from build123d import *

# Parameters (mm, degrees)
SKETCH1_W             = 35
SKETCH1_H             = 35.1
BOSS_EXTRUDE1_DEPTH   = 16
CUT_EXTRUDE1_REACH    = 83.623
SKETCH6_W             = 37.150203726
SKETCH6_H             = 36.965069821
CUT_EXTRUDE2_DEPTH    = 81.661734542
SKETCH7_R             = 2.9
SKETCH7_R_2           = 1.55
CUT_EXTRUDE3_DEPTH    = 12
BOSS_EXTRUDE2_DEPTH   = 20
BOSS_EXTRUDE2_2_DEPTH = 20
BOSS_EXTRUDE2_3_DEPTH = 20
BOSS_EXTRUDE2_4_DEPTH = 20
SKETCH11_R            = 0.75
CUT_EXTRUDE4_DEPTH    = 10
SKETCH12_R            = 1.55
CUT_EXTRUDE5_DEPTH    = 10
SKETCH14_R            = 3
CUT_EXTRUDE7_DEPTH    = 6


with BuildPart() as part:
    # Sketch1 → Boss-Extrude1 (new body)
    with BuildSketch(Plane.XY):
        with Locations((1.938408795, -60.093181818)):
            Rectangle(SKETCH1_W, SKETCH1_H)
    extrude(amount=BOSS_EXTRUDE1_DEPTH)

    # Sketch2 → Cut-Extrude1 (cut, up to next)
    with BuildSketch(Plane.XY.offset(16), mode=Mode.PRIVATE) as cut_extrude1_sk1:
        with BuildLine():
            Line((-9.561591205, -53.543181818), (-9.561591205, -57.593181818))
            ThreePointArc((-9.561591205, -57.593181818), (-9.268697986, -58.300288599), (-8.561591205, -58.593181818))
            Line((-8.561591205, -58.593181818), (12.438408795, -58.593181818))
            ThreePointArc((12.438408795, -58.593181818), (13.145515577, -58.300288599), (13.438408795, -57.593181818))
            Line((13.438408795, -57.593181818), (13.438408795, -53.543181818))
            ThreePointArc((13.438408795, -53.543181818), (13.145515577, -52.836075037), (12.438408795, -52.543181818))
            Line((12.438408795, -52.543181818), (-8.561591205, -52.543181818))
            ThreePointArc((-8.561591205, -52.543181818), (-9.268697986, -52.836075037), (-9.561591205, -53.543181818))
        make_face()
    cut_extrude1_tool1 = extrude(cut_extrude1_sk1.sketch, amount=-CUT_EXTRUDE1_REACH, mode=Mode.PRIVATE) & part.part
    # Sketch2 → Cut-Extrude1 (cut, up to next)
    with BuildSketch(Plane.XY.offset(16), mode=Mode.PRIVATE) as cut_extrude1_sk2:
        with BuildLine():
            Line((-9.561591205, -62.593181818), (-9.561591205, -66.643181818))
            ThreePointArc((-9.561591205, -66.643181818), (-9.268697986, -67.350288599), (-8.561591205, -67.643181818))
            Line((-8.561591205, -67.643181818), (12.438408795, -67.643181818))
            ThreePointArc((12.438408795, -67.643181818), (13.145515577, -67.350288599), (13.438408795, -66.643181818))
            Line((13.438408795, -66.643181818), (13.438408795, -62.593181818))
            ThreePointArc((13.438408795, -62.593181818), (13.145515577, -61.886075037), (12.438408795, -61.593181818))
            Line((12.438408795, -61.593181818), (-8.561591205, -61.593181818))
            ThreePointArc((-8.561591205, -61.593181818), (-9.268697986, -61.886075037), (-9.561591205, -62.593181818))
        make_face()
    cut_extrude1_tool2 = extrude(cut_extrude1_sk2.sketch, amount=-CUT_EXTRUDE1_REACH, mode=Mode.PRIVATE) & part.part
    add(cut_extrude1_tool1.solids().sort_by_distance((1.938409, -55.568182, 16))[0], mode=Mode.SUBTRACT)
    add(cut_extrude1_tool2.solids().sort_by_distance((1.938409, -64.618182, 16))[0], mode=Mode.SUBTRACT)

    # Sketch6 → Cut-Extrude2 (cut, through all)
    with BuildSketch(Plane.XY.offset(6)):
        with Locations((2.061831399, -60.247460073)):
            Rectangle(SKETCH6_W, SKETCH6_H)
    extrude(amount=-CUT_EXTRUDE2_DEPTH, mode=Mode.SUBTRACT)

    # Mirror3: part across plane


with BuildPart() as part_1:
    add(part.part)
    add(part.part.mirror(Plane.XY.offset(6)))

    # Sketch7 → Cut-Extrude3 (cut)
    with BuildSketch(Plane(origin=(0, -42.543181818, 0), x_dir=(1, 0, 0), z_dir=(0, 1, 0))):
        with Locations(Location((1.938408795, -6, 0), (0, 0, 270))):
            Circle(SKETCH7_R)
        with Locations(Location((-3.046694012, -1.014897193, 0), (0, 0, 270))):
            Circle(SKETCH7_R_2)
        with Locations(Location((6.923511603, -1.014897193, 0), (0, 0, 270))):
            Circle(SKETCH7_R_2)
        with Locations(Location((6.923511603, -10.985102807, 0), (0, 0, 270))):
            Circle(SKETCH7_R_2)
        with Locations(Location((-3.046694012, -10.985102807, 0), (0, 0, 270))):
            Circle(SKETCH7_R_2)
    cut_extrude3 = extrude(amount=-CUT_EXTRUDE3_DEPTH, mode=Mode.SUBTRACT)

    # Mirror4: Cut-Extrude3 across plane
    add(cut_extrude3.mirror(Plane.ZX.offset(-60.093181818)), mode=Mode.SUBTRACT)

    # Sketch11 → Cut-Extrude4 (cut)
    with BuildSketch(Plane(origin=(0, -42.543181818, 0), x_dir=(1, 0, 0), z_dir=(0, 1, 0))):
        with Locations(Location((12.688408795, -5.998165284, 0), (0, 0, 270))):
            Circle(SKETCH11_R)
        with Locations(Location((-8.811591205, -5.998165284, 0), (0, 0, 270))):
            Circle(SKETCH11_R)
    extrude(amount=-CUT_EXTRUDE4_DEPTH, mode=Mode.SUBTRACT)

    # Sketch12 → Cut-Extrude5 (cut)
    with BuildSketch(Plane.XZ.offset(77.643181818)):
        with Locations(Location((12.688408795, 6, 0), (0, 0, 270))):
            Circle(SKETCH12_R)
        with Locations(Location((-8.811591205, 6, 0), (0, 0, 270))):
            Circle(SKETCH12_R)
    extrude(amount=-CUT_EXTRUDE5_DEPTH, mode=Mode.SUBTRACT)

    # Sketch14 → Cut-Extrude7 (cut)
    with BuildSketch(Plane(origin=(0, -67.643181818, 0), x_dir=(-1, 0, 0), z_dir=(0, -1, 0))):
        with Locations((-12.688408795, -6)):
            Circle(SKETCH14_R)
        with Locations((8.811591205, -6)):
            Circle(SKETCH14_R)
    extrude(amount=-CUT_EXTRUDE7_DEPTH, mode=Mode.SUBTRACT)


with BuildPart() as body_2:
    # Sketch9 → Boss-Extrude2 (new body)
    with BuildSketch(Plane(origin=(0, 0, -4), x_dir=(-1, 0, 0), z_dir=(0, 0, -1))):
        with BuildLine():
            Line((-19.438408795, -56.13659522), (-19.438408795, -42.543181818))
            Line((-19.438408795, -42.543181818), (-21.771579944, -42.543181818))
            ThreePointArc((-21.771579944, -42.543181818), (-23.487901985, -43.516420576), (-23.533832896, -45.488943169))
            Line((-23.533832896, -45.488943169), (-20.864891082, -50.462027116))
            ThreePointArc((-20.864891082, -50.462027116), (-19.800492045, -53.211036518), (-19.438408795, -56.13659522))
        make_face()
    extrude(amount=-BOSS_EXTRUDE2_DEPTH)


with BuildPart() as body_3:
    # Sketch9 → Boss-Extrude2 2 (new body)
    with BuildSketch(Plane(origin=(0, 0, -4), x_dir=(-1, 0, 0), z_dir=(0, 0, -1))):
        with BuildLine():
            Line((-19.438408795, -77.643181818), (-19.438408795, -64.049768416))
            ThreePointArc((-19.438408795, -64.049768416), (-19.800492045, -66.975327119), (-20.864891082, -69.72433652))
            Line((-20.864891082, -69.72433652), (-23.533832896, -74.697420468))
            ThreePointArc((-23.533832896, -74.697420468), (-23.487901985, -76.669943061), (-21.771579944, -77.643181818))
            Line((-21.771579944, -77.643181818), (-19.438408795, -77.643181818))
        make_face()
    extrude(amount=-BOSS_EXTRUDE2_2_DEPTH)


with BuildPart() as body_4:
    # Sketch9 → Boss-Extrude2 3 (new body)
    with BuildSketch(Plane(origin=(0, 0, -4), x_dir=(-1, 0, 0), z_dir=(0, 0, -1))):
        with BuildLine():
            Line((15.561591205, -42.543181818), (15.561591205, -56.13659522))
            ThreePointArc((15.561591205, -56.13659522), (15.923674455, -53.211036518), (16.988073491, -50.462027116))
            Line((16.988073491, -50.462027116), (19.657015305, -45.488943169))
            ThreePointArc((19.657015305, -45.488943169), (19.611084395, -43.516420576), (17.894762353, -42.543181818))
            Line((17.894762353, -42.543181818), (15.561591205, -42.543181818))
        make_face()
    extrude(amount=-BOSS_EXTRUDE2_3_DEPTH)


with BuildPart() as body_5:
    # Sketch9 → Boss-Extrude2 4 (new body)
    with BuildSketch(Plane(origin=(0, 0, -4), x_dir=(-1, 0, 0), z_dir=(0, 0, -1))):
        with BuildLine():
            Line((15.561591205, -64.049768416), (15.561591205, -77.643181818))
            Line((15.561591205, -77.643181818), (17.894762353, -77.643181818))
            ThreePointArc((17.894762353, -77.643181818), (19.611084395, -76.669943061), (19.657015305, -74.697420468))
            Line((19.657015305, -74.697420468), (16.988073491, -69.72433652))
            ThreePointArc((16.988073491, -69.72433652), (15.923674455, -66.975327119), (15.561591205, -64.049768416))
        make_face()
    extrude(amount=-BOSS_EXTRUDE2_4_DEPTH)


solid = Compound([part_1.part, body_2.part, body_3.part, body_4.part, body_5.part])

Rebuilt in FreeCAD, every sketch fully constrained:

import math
import FreeCAD as App
import Part
import Sketcher

V = App.Vector
Q = App.Units.Quantity

doc = App.newDocument("Part")
body = doc.addObject("PartDesign::Body", "Body")

# Sketch on XY plane
sketch1 = body.newObject("Sketcher::SketchObject", "Sketch")
sketch1.AttachmentSupport = (doc.getObject("XY_Plane"), [""])
sketch1.MapMode = "FlatFace"
sketch1.addGeometry([
    Part.LineSegment(V(-16, -43, 0), V(-16, -78, 0)),
    Part.LineSegment(V(-16, -78, 0), V(19, -78, 0)),
    Part.LineSegment(V(19, -78, 0), V(19, -43, 0)),
    Part.LineSegment(V(19, -43, 0), V(-16, -43, 0)),
], False)
sketch1.addConstraint([
    Sketcher.Constraint("Coincident", 0, 2, 1, 1),
    Sketcher.Constraint("Coincident", 1, 2, 2, 1),
    Sketcher.Constraint("Coincident", 2, 2, 3, 1),
    Sketcher.Constraint("Coincident", 3, 2, 0, 1),
    Sketcher.Constraint("Vertical", 0),
    Sketcher.Constraint("Horizontal", 1),
    Sketcher.Constraint("Vertical", 2),
    Sketcher.Constraint("Horizontal", 3),
    Sketcher.Constraint("DistanceX", 1, 1, 1, 2, Q("35 mm")),
    Sketcher.Constraint("DistanceY", 0, 2, 0, 1, Q("35.1 mm")),
    Sketcher.Constraint("DistanceX", 0, 2, -1, 1, Q("15.561591 mm")),
    Sketcher.Constraint("DistanceY", 0, 2, -1, 1, Q("77.643182 mm")),
])
pad1 = body.newObject("PartDesign::Pad", "Pad")
pad1.Profile = sketch1
pad1.Length = 16

# Sketch on XY plane
sketch2 = body.newObject("Sketcher::SketchObject", "Sketch001")
sketch2.AttachmentSupport = (doc.getObject("XY_Plane"), [""])
sketch2.MapMode = "FlatFace"
sketch2.AttachmentOffset = App.Placement(V(0, 0, 16), App.Rotation())
sketch2.addGeometry([
    Part.LineSegment(V(-9.6, -53.5, 0), V(-9.6, -57.6, 0)),  # 0
    Part.ArcOfCircle(Part.Circle(V(-8.6, -57.6, 0), V(0, 0, 1), 1), math.radians(-180), math.radians(-90)),  # 1
    Part.LineSegment(V(-8.6, -58.6, 0), V(12.4, -58.6, 0)),  # 2
    Part.ArcOfCircle(Part.Circle(V(12.4, -57.6, 0), V(0, 0, 1), 1), math.radians(-90), math.radians(0)),  # 3
    Part.LineSegment(V(13.4, -57.6, 0), V(13.4, -53.5, 0)),  # 4
    Part.ArcOfCircle(Part.Circle(V(12.4, -53.5, 0), V(0, 0, 1), 1), math.radians(0), math.radians(90)),  # 5
    Part.LineSegment(V(12.4, -52.5, 0), V(-8.6, -52.5, 0)),  # 6
    Part.ArcOfCircle(Part.Circle(V(-8.6, -53.5, 0), V(0, 0, 1), 1), math.radians(90), math.radians(180)),  # 7
], False)
sketch2.addConstraint([
    Sketcher.Constraint("Tangent", 0, 2, 1, 1),
    Sketcher.Constraint("Tangent", 1, 2, 2, 1),
    Sketcher.Constraint("Tangent", 2, 2, 3, 1),
    Sketcher.Constraint("Tangent", 3, 2, 4, 1),
    Sketcher.Constraint("Tangent", 4, 2, 5, 1),
    Sketcher.Constraint("Tangent", 5, 2, 6, 1),
    Sketcher.Constraint("Tangent", 6, 2, 7, 1),
    Sketcher.Constraint("Tangent", 7, 2, 0, 1),
    Sketcher.Constraint("Vertical", 0),
    Sketcher.Constraint("Horizontal", 2),
    Sketcher.Constraint("Vertical", 4),
    Sketcher.Constraint("Horizontal", 6),
    Sketcher.Constraint("Equal", 1, 3),
    Sketcher.Constraint("Equal", 3, 5),
    Sketcher.Constraint("Equal", 5, 7),
    Sketcher.Constraint("Radius", 1, Q("1 mm")),
    Sketcher.Constraint("DistanceX", 2, 1, 2, 2, Q("21 mm")),
    Sketcher.Constraint("DistanceY", 0, 2, 0, 1, Q("4.05 mm")),
    Sketcher.Constraint("DistanceX", 1, 3, -1, 1, Q("8.561591 mm")),
    Sketcher.Constraint("DistanceY", 1, 3, -1, 1, Q("57.593182 mm")),
])
pocket1 = body.newObject("PartDesign::Pocket", "Pocket")
pocket1.Profile = sketch2
pocket1.Type = "UpToFirst"

# Sketch on XY plane
sketch3 = body.newObject("Sketcher::SketchObject", "Sketch002")
sketch3.AttachmentSupport = (doc.getObject("XY_Plane"), [""])
sketch3.MapMode = "FlatFace"
sketch3.AttachmentOffset = App.Placement(V(0, 0, 16), App.Rotation())
sketch3.addGeometry([
    Part.LineSegment(V(-9.6, -62.6, 0), V(-9.6, -66.6, 0)),  # 0
    Part.ArcOfCircle(Part.Circle(V(-8.6, -66.6, 0), V(0, 0, 1), 1), math.radians(-180), math.radians(-90)),  # 1
    Part.LineSegment(V(-8.6, -67.6, 0), V(12.4, -67.6, 0)),  # 2
    Part.ArcOfCircle(Part.Circle(V(12.4, -66.6, 0), V(0, 0, 1), 1), math.radians(-90), math.radians(0)),  # 3
    Part.LineSegment(V(13.4, -66.6, 0), V(13.4, -62.6, 0)),  # 4
    Part.ArcOfCircle(Part.Circle(V(12.4, -62.6, 0), V(0, 0, 1), 1), math.radians(0), math.radians(90)),  # 5
    Part.LineSegment(V(12.4, -61.6, 0), V(-8.6, -61.6, 0)),  # 6
    Part.ArcOfCircle(Part.Circle(V(-8.6, -62.6, 0), V(0, 0, 1), 1), math.radians(90), math.radians(180)),  # 7
], False)
sketch3.addConstraint([
    Sketcher.Constraint("Tangent", 0, 2, 1, 1),
    Sketcher.Constraint("Tangent", 1, 2, 2, 1),
    Sketcher.Constraint("Tangent", 2, 2, 3, 1),
    Sketcher.Constraint("Tangent", 3, 2, 4, 1),
    Sketcher.Constraint("Tangent", 4, 2, 5, 1),
    Sketcher.Constraint("Tangent", 5, 2, 6, 1),
    Sketcher.Constraint("Tangent", 6, 2, 7, 1),
    Sketcher.Constraint("Tangent", 7, 2, 0, 1),
    Sketcher.Constraint("Vertical", 0),
    Sketcher.Constraint("Horizontal", 2),
    Sketcher.Constraint("Vertical", 4),
    Sketcher.Constraint("Horizontal", 6),
    Sketcher.Constraint("Equal", 1, 3),
    Sketcher.Constraint("Equal", 3, 5),
    Sketcher.Constraint("Equal", 5, 7),
    Sketcher.Constraint("Radius", 1, Q("1 mm")),
    Sketcher.Constraint("DistanceX", 2, 1, 2, 2, Q("21 mm")),
    Sketcher.Constraint("DistanceY", 0, 2, 0, 1, Q("4.05 mm")),
    Sketcher.Constraint("DistanceX", 1, 3, -1, 1, Q("8.561591 mm")),
    Sketcher.Constraint("DistanceY", 1, 3, -1, 1, Q("66.643182 mm")),
])
pocket2 = body.newObject("PartDesign::Pocket", "Pocket001")
pocket2.Profile = sketch3
pocket2.Type = "UpToFirst"

# Sketch on XY plane
sketch4 = body.newObject("Sketcher::SketchObject", "Sketch003")
sketch4.AttachmentSupport = (doc.getObject("XY_Plane"), [""])
sketch4.MapMode = "FlatFace"
sketch4.AttachmentOffset = App.Placement(V(0, 0, 6), App.Rotation())
sketch4.addGeometry([
    Part.LineSegment(V(-17, -42, 0), V(-17, -79, 0)),
    Part.LineSegment(V(-17, -79, 0), V(21, -79, 0)),
    Part.LineSegment(V(21, -79, 0), V(21, -42, 0)),
    Part.LineSegment(V(21, -42, 0), V(-17, -42, 0)),
], False)
sketch4.addConstraint([
    Sketcher.Constraint("Coincident", 0, 2, 1, 1),
    Sketcher.Constraint("Coincident", 1, 2, 2, 1),
    Sketcher.Constraint("Coincident", 2, 2, 3, 1),
    Sketcher.Constraint("Coincident", 3, 2, 0, 1),
    Sketcher.Constraint("Vertical", 0),
    Sketcher.Constraint("Horizontal", 1),
    Sketcher.Constraint("Vertical", 2),
    Sketcher.Constraint("Horizontal", 3),
    Sketcher.Constraint("DistanceY", 0, 2, 0, 1, Q("36.96507 mm")),
    Sketcher.Constraint("DistanceX", 1, 1, 1, 2, Q("37.150204 mm")),
    Sketcher.Constraint("DistanceX", 0, 2, -1, 1, Q("16.51327 mm")),
    Sketcher.Constraint("DistanceY", 0, 2, -1, 1, Q("78.729995 mm")),
])
pocket3 = body.newObject("PartDesign::Pocket", "Pocket002")
pocket3.Profile = sketch4
pocket3.Type = "ThroughAll"
body2 = doc.addObject("PartDesign::Body", "Body001")
doc.recompute()

body2.BaseFeature = body
doc.recompute()

mirroring = doc.addObject("Part::Mirroring", "Mirroring")
mirroring.Source = body
mirroring.Base = V(0, 0, 6)
mirroring.Normal = V(0, 0, 1)
body3 = doc.addObject("PartDesign::Body", "Body002")
body3.BaseFeature = mirroring
boolean = body2.newObject("PartDesign::Boolean", "Boolean")
boolean.Type = "Fuse"
boolean.addObjects([body3])
doc.recompute()

# Sketch on XZ plane
sketch5 = body2.newObject("Sketcher::SketchObject", "Sketch004")
sketch5.AttachmentSupport = (doc.getObject("XZ_Plane001"), [""])
sketch5.MapMode = "FlatFace"
sketch5.AttachmentOffset = App.Placement(V(0, 0, 42.543182), App.Rotation())
sketch5.addGeometry([
    Part.Circle(V(1.9, 6, 0), V(0, 0, 1), 2.9),  # 0
    Part.Circle(V(-3, 1, 0), V(0, 0, 1), 1.6),  # 1
    Part.Circle(V(6.9, 1, 0), V(0, 0, 1), 1.6),  # 2
    Part.Circle(V(6.9, 11, 0), V(0, 0, 1), 1.6),  # 3
    Part.Circle(V(-3, 11, 0), V(0, 0, 1), 1.6),  # 4
], False)
sketch5.addConstraint([
    Sketcher.Constraint("Equal", 1, 2),
    Sketcher.Constraint("Equal", 2, 3),
    Sketcher.Constraint("Equal", 3, 4),
    Sketcher.Constraint("Horizontal", 1, 3, 2, 3),
    Sketcher.Constraint("Horizontal", 3, 3, 4, 3),
    Sketcher.Constraint("Vertical", 2, 3, 3, 3),
    Sketcher.Constraint("Vertical", 1, 3, 4, 3),
    Sketcher.Constraint("Diameter", 0, Q("5.8 mm")),
    Sketcher.Constraint("Diameter", 1, Q("3.1 mm")),
    Sketcher.Constraint("DistanceY", -1, 1, 0, 3, Q("6 mm")),
    Sketcher.Constraint("DistanceX", -1, 1, 0, 3, Q("1.938409 mm")),
    Sketcher.Constraint("DistanceX", -1, 1, 2, 3, Q("6.923512 mm")),
    Sketcher.Constraint("DistanceX", 1, 3, -1, 1, Q("3.046694 mm")),
    Sketcher.Constraint("DistanceY", -1, 1, 1, 3, Q("1.014897 mm")),
    Sketcher.Constraint("DistanceY", -1, 1, 3, 3, Q("10.985103 mm")),
])
pocket4 = body2.newObject("PartDesign::Pocket", "Pocket003")
pocket4.Profile = sketch5
pocket4.Length = 12
pocket4.Reversed = True
doc.recompute()

datumplane = body2.newObject("PartDesign::Plane", "DatumPlane")
datumplane.AttachmentSupport = (doc.getObject("XZ_Plane001"), [""])
datumplane.MapMode = "FlatFace"
datumplane.AttachmentOffset = App.Placement(V(0, 0, 60.093182), App.Rotation())
mirrored = body2.newObject("PartDesign::Mirrored", "Mirrored")
mirrored.Originals = [pocket4]
mirrored.MirrorPlane = (datumplane, [""])
body2.Tip = mirrored

# Sketch on XZ plane
sketch6 = body2.newObject("Sketcher::SketchObject", "Sketch005")
sketch6.AttachmentSupport = (doc.getObject("XZ_Plane001"), [""])
sketch6.MapMode = "FlatFace"
sketch6.AttachmentOffset = App.Placement(V(0, 0, 42.543182), App.Rotation())
sketch6.addGeometry([
    Part.Circle(V(12.7, 6, 0), V(0, 0, 1), 0.8),
    Part.Circle(V(-8.8, 6, 0), V(0, 0, 1), 0.8),
], False)
sketch6.addConstraint([
    Sketcher.Constraint("Equal", 0, 1),
    Sketcher.Constraint("Horizontal", 0, 3, 1, 3),
    Sketcher.Constraint("Diameter", 0, Q("1.5 mm")),
    Sketcher.Constraint("DistanceX", 1, 3, 0, 3, Q("21.5 mm")),
    Sketcher.Constraint("DistanceX", -1, 1, 0, 3, Q("12.688409 mm")),
    Sketcher.Constraint("DistanceY", -1, 1, 0, 3, Q("5.998165 mm")),
])
pocket5 = body2.newObject("PartDesign::Pocket", "Pocket004")
pocket5.Profile = sketch6
pocket5.Length = 10
pocket5.Reversed = True

# Sketch on XZ plane
sketch7 = body2.newObject("Sketcher::SketchObject", "Sketch006")
sketch7.AttachmentSupport = (doc.getObject("XZ_Plane001"), [""])
sketch7.MapMode = "FlatFace"
sketch7.AttachmentOffset = App.Placement(V(0, 0, 77.643182), App.Rotation())
sketch7.addGeometry([
    Part.Circle(V(12.7, 6, 0), V(0, 0, 1), 1.6),
    Part.Circle(V(-8.8, 6, 0), V(0, 0, 1), 1.6),
], False)
sketch7.addConstraint([
    Sketcher.Constraint("Equal", 0, 1),
    Sketcher.Constraint("Horizontal", 0, 3, 1, 3),
    Sketcher.Constraint("Diameter", 0, Q("3.1 mm")),
    Sketcher.Constraint("DistanceY", -1, 1, 0, 3, Q("6 mm")),
    Sketcher.Constraint("DistanceX", 1, 3, 0, 3, Q("21.5 mm")),
    Sketcher.Constraint("DistanceX", -1, 1, 0, 3, Q("12.688409 mm")),
])
pocket6 = body2.newObject("PartDesign::Pocket", "Pocket005")
pocket6.Profile = sketch7
pocket6.Length = 10

# Sketch on XZ plane
sketch8 = body2.newObject("Sketcher::SketchObject", "Sketch007")
sketch8.AttachmentSupport = (doc.getObject("XZ_Plane001"), [""])
sketch8.MapMode = "FlatFace"
sketch8.AttachmentOffset = App.Placement(V(0, 0, 67.643182), App.Rotation())
sketch8.addGeometry([
    Part.Circle(V(12.7, 6, 0), V(0, 0, 1), 3),
    Part.Circle(V(-8.8, 6, 0), V(0, 0, 1), 3),
], False)
sketch8.addConstraint([
    Sketcher.Constraint("Equal", 0, 1),
    Sketcher.Constraint("Horizontal", 0, 3, 1, 3),
    Sketcher.Constraint("Diameter", 0, Q("6 mm")),
    Sketcher.Constraint("DistanceY", -1, 1, 0, 3, Q("6 mm")),
    Sketcher.Constraint("DistanceX", 1, 3, 0, 3, Q("21.5 mm")),
    Sketcher.Constraint("DistanceX", -1, 1, 0, 3, Q("12.688409 mm")),
])
pocket7 = body2.newObject("PartDesign::Pocket", "Pocket006")
pocket7.Profile = sketch8
pocket7.Length = 6
body4 = doc.addObject("PartDesign::Body", "Body003")

# Sketch on XY plane
sketch9 = body4.newObject("Sketcher::SketchObject", "Sketch008")
sketch9.AttachmentSupport = (doc.getObject("XY_Plane003"), [""])
sketch9.MapMode = "FlatFace"
sketch9.AttachmentOffset = App.Placement(V(0, 0, -4), App.Rotation())
sketch9.addGeometry([
    Part.LineSegment(V(19.4, -56.1, 0), V(19.4, -42.5, 0)),  # 0
    Part.LineSegment(V(19.4, -42.5, 0), V(21.8, -42.5, 0)),  # 1
    Part.ArcOfCircle(Part.Circle(V(21.8, -44.5, 0), V(0, 0, 1), 2), math.radians(-28), math.radians(90)),  # 2
    Part.LineSegment(V(23.5, -45.5, 0), V(20.9, -50.5, 0)),  # 3
    Part.ArcOfCircle(Part.Circle(V(31.4, -56.1, 0), V(0, 0, 1), 12), math.radians(152), math.radians(180)),  # 4
], False)
sketch9.addConstraint([
    Sketcher.Constraint("Coincident", 0, 2, 1, 1),
    Sketcher.Constraint("Tangent", 1, 2, 2, 2),
    Sketcher.Constraint("Tangent", 2, 1, 3, 1),
    Sketcher.Constraint("Tangent", 3, 2, 4, 1),
    Sketcher.Constraint("Tangent", 4, 2, 0, 1),
    Sketcher.Constraint("Vertical", 0),
    Sketcher.Constraint("Horizontal", 1),
    Sketcher.Constraint("Radius", 2, Q("2 mm")),
    Sketcher.Constraint("Radius", 4, Q("12 mm")),
    Sketcher.Constraint("DistanceX", 1, 1, 1, 2, Q("2.333171 mm")),
    Sketcher.Constraint("DistanceY", 0, 1, 0, 2, Q("13.593413 mm")),
    Sketcher.Constraint("DistanceX", -1, 1, 2, 3, Q("21.77158 mm")),
    Sketcher.Constraint("DistanceY", 2, 3, -1, 1, Q("44.543182 mm")),
])
pad2 = body4.newObject("PartDesign::Pad", "Pad001")
pad2.Profile = sketch9
pad2.Length = 20
body5 = doc.addObject("PartDesign::Body", "Body004")

# Sketch on XY plane
sketch10 = body5.newObject("Sketcher::SketchObject", "Sketch009")
sketch10.AttachmentSupport = (doc.getObject("XY_Plane004"), [""])
sketch10.MapMode = "FlatFace"
sketch10.AttachmentOffset = App.Placement(V(0, 0, -4), App.Rotation())
sketch10.addGeometry([
    Part.LineSegment(V(19.4, -77.6, 0), V(19.4, -64, 0)),  # 0
    Part.ArcOfCircle(Part.Circle(V(31.4, -64, 0), V(0, 0, 1), 12), math.radians(180), math.radians(208)),  # 1
    Part.LineSegment(V(20.9, -69.7, 0), V(23.5, -74.7, 0)),  # 2
    Part.ArcOfCircle(Part.Circle(V(21.8, -75.6, 0), V(0, 0, 1), 2), math.radians(-90), math.radians(28)),  # 3
    Part.LineSegment(V(21.8, -77.6, 0), V(19.4, -77.6, 0)),  # 4
], False)
sketch10.addConstraint([
    Sketcher.Constraint("Tangent", 0, 2, 1, 1),
    Sketcher.Constraint("Tangent", 1, 2, 2, 1),
    Sketcher.Constraint("Tangent", 2, 2, 3, 2),
    Sketcher.Constraint("Tangent", 3, 1, 4, 1),
    Sketcher.Constraint("Coincident", 4, 2, 0, 1),
    Sketcher.Constraint("Vertical", 0),
    Sketcher.Constraint("Horizontal", 4),
    Sketcher.Constraint("Radius", 1, Q("12 mm")),
    Sketcher.Constraint("Radius", 3, Q("2 mm")),
    Sketcher.Constraint("DistanceX", 4, 2, 4, 1, Q("2.333171 mm")),
    Sketcher.Constraint("DistanceY", 0, 1, 0, 2, Q("13.593413 mm")),
    Sketcher.Constraint("DistanceX", -1, 1, 1, 3, Q("31.438409 mm")),
    Sketcher.Constraint("DistanceY", 1, 3, -1, 1, Q("64.049768 mm")),
])
pad3 = body5.newObject("PartDesign::Pad", "Pad002")
pad3.Profile = sketch10
pad3.Length = 20
body6 = doc.addObject("PartDesign::Body", "Body005")

# Sketch on XY plane
sketch11 = body6.newObject("Sketcher::SketchObject", "Sketch010")
sketch11.AttachmentSupport = (doc.getObject("XY_Plane005"), [""])
sketch11.MapMode = "FlatFace"
sketch11.AttachmentOffset = App.Placement(V(0, 0, -4), App.Rotation())
sketch11.addGeometry([
    Part.LineSegment(V(-15.6, -42.5, 0), V(-15.6, -56.1, 0)),  # 0
    Part.ArcOfCircle(Part.Circle(V(-27.6, -56.1, 0), V(0, 0, 1), 12), math.radians(0), math.radians(28)),  # 1
    Part.LineSegment(V(-17, -50.5, 0), V(-19.7, -45.5, 0)),  # 2
    Part.ArcOfCircle(Part.Circle(V(-17.9, -44.5, 0), V(0, 0, 1), 2), math.radians(90), math.radians(208)),  # 3
    Part.LineSegment(V(-17.9, -42.5, 0), V(-15.6, -42.5, 0)),  # 4
], False)
sketch11.addConstraint([
    Sketcher.Constraint("Tangent", 0, 2, 1, 1),
    Sketcher.Constraint("Tangent", 1, 2, 2, 1),
    Sketcher.Constraint("Tangent", 2, 2, 3, 2),
    Sketcher.Constraint("Tangent", 3, 1, 4, 1),
    Sketcher.Constraint("Coincident", 4, 2, 0, 1),
    Sketcher.Constraint("Vertical", 0),
    Sketcher.Constraint("Horizontal", 4),
    Sketcher.Constraint("Radius", 1, Q("12 mm")),
    Sketcher.Constraint("Radius", 3, Q("2 mm")),
    Sketcher.Constraint("DistanceX", 4, 1, 4, 2, Q("2.333171 mm")),
    Sketcher.Constraint("DistanceY", 0, 2, 0, 1, Q("13.593413 mm")),
    Sketcher.Constraint("DistanceX", 1, 3, -1, 1, Q("27.561591 mm")),
    Sketcher.Constraint("DistanceY", 3, 3, -1, 1, Q("44.543182 mm")),
])
pad4 = body6.newObject("PartDesign::Pad", "Pad003")
pad4.Profile = sketch11
pad4.Length = 20
body7 = doc.addObject("PartDesign::Body", "Body006")

# Sketch on XY plane
sketch12 = body7.newObject("Sketcher::SketchObject", "Sketch011")
sketch12.AttachmentSupport = (doc.getObject("XY_Plane006"), [""])
sketch12.MapMode = "FlatFace"
sketch12.AttachmentOffset = App.Placement(V(0, 0, -4), App.Rotation())
sketch12.addGeometry([
    Part.LineSegment(V(-15.6, -64, 0), V(-15.6, -77.6, 0)),  # 0
    Part.LineSegment(V(-15.6, -77.6, 0), V(-17.9, -77.6, 0)),  # 1
    Part.ArcOfCircle(Part.Circle(V(-17.9, -75.6, 0), V(0, 0, 1), 2), math.radians(152), math.radians(270)),  # 2
    Part.LineSegment(V(-19.7, -74.7, 0), V(-17, -69.7, 0)),  # 3
    Part.ArcOfCircle(Part.Circle(V(-27.6, -64, 0), V(0, 0, 1), 12), math.radians(-28), math.radians(0)),  # 4
], False)
sketch12.addConstraint([
    Sketcher.Constraint("Coincident", 0, 2, 1, 1),
    Sketcher.Constraint("Tangent", 1, 2, 2, 2),
    Sketcher.Constraint("Tangent", 2, 1, 3, 1),
    Sketcher.Constraint("Tangent", 3, 2, 4, 1),
    Sketcher.Constraint("Tangent", 4, 2, 0, 1),
    Sketcher.Constraint("Vertical", 0),
    Sketcher.Constraint("Horizontal", 1),
    Sketcher.Constraint("Radius", 2, Q("2 mm")),
    Sketcher.Constraint("Radius", 4, Q("12 mm")),
    Sketcher.Constraint("DistanceX", 1, 2, 1, 1, Q("2.333171 mm")),
    Sketcher.Constraint("DistanceY", 0, 2, 0, 1, Q("13.593413 mm")),
    Sketcher.Constraint("DistanceY", 2, 3, -1, 1, Q("75.643182 mm")),
    Sketcher.Constraint("DistanceX", 4, 3, -1, 1, Q("27.561591 mm")),
])
pad5 = body7.newObject("PartDesign::Pad", "Pad004")
pad5.Profile = sketch12
pad5.Length = 20
mirroring.Visibility = False

doc.recompute()
